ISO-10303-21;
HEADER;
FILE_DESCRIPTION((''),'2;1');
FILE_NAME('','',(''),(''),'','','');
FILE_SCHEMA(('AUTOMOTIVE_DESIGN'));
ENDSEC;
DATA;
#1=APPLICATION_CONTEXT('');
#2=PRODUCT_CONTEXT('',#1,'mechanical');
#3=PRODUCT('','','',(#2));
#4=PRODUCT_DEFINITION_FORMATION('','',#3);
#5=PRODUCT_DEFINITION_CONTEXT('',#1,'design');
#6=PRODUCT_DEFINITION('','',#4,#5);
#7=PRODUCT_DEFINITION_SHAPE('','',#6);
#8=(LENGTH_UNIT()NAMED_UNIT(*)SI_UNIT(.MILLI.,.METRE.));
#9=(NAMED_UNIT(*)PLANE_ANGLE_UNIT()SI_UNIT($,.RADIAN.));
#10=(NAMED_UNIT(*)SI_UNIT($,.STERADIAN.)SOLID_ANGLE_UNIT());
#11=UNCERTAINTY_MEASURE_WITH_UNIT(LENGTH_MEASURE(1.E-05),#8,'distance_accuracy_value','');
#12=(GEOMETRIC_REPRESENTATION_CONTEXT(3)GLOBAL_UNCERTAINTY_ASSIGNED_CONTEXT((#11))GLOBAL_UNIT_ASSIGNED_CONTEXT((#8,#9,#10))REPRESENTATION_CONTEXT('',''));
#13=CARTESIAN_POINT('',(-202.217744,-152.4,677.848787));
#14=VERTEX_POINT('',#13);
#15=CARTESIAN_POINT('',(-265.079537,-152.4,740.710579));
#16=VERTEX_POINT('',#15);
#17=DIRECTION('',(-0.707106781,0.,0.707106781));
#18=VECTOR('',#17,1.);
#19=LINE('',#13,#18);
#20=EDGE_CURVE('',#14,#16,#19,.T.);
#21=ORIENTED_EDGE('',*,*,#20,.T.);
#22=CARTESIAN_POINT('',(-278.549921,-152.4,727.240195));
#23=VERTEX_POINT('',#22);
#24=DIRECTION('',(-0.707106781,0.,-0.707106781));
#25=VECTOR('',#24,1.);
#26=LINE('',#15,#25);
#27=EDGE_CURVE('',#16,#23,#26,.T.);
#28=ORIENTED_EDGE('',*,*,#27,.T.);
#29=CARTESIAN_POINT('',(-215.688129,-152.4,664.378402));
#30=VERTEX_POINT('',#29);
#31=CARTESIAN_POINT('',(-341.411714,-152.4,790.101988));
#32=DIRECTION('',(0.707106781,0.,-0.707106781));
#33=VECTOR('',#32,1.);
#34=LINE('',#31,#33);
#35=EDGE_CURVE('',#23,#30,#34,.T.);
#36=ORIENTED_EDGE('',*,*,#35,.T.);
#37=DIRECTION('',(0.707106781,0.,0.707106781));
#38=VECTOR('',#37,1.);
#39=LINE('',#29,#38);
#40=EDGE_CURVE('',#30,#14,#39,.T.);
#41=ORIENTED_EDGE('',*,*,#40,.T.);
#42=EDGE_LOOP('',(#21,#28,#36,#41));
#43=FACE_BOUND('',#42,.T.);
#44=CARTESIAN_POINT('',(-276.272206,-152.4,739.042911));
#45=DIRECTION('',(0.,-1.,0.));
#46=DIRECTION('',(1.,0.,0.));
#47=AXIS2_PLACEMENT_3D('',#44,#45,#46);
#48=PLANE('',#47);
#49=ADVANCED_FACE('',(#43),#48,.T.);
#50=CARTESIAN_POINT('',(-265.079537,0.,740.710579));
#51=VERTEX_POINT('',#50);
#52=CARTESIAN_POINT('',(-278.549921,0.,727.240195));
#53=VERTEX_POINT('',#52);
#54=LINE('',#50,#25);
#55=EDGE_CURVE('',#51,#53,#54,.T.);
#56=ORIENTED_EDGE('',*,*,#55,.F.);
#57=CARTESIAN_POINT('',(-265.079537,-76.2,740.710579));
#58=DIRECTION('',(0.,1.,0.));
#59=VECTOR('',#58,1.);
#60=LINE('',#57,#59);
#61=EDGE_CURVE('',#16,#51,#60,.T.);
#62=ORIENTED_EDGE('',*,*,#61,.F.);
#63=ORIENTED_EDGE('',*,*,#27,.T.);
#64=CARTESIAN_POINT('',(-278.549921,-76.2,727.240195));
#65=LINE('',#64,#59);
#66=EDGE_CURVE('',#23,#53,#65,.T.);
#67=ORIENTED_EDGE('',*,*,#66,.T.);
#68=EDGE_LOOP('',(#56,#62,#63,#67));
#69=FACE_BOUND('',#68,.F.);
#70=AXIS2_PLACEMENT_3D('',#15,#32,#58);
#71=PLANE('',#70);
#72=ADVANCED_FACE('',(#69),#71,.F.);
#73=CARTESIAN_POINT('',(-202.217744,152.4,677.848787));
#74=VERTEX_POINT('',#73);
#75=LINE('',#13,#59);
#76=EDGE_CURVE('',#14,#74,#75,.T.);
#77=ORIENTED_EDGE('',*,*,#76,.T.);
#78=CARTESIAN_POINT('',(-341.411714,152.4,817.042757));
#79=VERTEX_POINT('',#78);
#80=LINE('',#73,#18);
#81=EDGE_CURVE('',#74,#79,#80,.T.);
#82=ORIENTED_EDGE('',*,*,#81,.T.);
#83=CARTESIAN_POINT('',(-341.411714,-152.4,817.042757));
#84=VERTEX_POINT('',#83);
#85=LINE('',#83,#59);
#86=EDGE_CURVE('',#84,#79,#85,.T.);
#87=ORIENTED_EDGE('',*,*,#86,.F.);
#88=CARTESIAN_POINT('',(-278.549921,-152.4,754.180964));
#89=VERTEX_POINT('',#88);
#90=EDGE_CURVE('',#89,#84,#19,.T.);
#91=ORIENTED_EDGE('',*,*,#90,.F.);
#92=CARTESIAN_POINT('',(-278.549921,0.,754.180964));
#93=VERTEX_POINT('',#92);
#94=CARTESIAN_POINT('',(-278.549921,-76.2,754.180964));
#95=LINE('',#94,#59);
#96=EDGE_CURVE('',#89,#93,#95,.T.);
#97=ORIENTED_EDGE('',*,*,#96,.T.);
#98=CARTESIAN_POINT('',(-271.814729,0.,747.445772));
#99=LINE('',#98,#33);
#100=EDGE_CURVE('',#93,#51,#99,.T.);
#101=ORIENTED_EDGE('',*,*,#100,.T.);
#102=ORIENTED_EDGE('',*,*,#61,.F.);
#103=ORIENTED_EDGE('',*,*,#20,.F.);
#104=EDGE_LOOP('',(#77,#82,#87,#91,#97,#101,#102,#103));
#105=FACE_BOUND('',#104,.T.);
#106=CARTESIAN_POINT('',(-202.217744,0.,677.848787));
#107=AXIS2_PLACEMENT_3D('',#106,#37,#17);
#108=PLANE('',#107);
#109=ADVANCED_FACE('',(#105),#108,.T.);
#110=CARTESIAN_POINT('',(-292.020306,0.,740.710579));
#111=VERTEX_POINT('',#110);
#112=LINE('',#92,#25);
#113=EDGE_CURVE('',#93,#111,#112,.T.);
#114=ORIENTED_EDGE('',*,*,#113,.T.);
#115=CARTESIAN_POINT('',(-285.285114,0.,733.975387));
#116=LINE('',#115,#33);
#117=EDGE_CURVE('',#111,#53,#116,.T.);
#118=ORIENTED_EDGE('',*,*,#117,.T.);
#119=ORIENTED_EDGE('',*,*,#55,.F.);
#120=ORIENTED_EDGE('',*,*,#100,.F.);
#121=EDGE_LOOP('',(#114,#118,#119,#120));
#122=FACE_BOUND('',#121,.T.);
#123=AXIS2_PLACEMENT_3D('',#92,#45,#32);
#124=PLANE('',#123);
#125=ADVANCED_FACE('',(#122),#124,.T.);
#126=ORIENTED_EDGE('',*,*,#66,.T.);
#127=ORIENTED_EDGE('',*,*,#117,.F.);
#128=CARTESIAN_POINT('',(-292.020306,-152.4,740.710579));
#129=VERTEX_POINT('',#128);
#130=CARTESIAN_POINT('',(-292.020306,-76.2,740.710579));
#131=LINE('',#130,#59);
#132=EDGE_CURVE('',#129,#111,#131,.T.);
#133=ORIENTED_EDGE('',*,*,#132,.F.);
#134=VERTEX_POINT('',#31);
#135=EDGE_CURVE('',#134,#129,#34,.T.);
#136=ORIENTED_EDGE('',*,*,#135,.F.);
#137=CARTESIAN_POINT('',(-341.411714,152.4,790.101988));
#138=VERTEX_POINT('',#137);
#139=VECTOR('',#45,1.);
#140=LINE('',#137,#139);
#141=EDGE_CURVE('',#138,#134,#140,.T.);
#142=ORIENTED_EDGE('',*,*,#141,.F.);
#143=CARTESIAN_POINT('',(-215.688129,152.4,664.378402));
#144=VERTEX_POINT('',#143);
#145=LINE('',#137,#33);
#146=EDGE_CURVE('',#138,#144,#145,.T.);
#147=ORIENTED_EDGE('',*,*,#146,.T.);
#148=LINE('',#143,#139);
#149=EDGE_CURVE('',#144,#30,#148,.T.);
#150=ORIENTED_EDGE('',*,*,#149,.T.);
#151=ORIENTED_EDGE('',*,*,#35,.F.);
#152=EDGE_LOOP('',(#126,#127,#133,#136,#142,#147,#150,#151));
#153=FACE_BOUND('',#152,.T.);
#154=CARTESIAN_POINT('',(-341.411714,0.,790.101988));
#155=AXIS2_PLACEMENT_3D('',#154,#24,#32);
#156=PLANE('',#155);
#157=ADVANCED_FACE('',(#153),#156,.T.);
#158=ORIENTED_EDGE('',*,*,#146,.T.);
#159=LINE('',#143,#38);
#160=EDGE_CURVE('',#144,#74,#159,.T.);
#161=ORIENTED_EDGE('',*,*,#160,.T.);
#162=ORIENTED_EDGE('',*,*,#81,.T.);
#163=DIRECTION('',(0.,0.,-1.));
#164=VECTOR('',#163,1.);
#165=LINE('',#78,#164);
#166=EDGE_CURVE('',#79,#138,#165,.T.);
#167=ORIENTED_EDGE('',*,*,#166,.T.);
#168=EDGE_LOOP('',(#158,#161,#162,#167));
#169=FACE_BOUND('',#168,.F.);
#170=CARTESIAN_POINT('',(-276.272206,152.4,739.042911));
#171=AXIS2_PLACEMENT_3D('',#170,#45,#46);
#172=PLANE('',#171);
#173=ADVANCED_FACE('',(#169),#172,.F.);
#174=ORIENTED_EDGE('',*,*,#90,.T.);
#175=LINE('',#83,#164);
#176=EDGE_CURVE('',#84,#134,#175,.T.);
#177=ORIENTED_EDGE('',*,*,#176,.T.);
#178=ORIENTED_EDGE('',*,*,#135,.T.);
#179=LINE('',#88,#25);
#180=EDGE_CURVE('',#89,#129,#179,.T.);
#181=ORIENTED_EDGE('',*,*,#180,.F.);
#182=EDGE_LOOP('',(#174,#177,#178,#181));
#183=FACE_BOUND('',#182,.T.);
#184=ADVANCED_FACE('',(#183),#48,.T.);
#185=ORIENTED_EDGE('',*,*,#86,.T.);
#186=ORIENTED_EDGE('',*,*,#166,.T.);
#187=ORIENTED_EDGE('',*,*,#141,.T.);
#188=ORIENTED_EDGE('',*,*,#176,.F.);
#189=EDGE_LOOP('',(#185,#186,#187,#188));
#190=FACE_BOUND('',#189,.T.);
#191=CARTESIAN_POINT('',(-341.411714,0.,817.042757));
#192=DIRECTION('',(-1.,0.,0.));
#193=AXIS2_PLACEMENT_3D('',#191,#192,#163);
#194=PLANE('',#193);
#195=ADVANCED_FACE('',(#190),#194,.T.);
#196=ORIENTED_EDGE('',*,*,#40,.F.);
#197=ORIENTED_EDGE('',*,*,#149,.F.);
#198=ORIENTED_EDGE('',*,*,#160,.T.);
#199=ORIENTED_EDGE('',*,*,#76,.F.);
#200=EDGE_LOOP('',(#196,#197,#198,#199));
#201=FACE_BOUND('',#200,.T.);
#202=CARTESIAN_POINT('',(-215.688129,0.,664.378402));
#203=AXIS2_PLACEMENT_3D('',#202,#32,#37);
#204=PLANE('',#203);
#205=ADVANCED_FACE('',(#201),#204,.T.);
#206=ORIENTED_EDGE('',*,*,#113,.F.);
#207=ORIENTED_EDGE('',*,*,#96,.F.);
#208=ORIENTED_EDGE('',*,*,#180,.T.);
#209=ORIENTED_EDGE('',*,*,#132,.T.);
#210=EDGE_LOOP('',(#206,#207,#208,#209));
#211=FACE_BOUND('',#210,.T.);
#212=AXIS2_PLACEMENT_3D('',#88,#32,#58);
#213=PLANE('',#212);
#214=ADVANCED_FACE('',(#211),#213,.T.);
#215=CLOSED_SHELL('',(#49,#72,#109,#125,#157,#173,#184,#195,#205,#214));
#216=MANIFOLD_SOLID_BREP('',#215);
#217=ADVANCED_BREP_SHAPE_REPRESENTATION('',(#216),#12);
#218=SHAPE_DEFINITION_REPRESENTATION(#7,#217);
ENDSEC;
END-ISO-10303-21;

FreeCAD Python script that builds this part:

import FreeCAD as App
import Part
import Sketcher
Q = App.Units.Quantity


def add_polygon(sketch, points):
    """Adds a closed chain of lines whose ends are joined by coincident constraints."""
    first, n = sketch.GeometryCount, len(points)
    for a, b in zip(points, points[1:] + points[:1]):
        sketch.addGeometry(Part.LineSegment(App.Vector(*a, 0), App.Vector(*b, 0)), False)
    for i in range(n):
        sketch.addConstraint(Sketcher.Constraint("Coincident", first + i, 2, first + (i + 1) % n, 1))

doc = App.newDocument("Part")
body = doc.addObject("PartDesign::Body", "Body")

sketch1 = body.newObject("Sketcher::SketchObject", "Sketch")
sketch1.AttachmentSupport = (doc.getObject("XZ_Plane"), [""])
sketch1.MapMode = "FlatFace"
add_polygon(sketch1, [(-341, 817), (-341, 790), (-216, 664), (-202, 678)])
sketch1.addConstraint(Sketcher.Constraint("Vertical", 0))
sketch1.addConstraint(Sketcher.Constraint("Perpendicular", 1, 2))
sketch1.addConstraint(Sketcher.Constraint("Perpendicular", 2, 3))
sketch1.addConstraint(Sketcher.Constraint("Distance", 1, Q("7 in")))
sketch1.addConstraint(Sketcher.Constraint("Angle", 1, Q("-45 deg")))
sketch1.addConstraint(Sketcher.Constraint("Distance", 2, Q("0.75 in")))
sketch1.addConstraint(Sketcher.Constraint("DistanceY", -1, 1, 0, 2, 790.101988))
sketch1.addConstraint(Sketcher.Constraint("DistanceX", 1, 2, -1, 1, 215.688129))
pad1 = body.newObject("PartDesign::Pad", "Pad")
pad1.Profile = sketch1
pad1.Length = Q("12 in")
pad1.Midplane = True

sketch2 = body.newObject("Sketcher::SketchObject", "Sketch001")
sketch2.Placement = App.Placement(App.Vector(237.815521, 0, 237.815521), App.Rotation(App.Vector(0.707106781, 0, -0.707106781), App.Vector(0, 0.999999999, 0), App.Vector(0.707106781, 0, 0.707106781), "ZXY"))
add_polygon(sketch2, [(-730, 0), (-730, -152), (-711, -152), (-711, 0)])
sketch2.addConstraint(Sketcher.Constraint("Vertical", 0))
sketch2.addConstraint(Sketcher.Constraint("Horizontal", 1))
sketch2.addConstraint(Sketcher.Constraint("Vertical", 2))
sketch2.addConstraint(Sketcher.Constraint("Horizontal", 3))
sketch2.addConstraint(Sketcher.Constraint("PointOnObject", 2, 2, -1))
sketch2.addConstraint(Sketcher.Constraint("DistanceY", 0, 2, 0, 1, Q("6 in")))
sketch2.addConstraint(Sketcher.Constraint("DistanceX", 1, 1, 1, 2, Q("0.75 in")))
sketch2.addConstraint(Sketcher.Constraint("DistanceX", 0, 2, -1, 1, 730.251012))
pocket1 = body.newObject("PartDesign::Pocket", "Pocket")
pocket1.Profile = sketch2
pocket1.Length = Q("0.75 in")

doc.recompute()
